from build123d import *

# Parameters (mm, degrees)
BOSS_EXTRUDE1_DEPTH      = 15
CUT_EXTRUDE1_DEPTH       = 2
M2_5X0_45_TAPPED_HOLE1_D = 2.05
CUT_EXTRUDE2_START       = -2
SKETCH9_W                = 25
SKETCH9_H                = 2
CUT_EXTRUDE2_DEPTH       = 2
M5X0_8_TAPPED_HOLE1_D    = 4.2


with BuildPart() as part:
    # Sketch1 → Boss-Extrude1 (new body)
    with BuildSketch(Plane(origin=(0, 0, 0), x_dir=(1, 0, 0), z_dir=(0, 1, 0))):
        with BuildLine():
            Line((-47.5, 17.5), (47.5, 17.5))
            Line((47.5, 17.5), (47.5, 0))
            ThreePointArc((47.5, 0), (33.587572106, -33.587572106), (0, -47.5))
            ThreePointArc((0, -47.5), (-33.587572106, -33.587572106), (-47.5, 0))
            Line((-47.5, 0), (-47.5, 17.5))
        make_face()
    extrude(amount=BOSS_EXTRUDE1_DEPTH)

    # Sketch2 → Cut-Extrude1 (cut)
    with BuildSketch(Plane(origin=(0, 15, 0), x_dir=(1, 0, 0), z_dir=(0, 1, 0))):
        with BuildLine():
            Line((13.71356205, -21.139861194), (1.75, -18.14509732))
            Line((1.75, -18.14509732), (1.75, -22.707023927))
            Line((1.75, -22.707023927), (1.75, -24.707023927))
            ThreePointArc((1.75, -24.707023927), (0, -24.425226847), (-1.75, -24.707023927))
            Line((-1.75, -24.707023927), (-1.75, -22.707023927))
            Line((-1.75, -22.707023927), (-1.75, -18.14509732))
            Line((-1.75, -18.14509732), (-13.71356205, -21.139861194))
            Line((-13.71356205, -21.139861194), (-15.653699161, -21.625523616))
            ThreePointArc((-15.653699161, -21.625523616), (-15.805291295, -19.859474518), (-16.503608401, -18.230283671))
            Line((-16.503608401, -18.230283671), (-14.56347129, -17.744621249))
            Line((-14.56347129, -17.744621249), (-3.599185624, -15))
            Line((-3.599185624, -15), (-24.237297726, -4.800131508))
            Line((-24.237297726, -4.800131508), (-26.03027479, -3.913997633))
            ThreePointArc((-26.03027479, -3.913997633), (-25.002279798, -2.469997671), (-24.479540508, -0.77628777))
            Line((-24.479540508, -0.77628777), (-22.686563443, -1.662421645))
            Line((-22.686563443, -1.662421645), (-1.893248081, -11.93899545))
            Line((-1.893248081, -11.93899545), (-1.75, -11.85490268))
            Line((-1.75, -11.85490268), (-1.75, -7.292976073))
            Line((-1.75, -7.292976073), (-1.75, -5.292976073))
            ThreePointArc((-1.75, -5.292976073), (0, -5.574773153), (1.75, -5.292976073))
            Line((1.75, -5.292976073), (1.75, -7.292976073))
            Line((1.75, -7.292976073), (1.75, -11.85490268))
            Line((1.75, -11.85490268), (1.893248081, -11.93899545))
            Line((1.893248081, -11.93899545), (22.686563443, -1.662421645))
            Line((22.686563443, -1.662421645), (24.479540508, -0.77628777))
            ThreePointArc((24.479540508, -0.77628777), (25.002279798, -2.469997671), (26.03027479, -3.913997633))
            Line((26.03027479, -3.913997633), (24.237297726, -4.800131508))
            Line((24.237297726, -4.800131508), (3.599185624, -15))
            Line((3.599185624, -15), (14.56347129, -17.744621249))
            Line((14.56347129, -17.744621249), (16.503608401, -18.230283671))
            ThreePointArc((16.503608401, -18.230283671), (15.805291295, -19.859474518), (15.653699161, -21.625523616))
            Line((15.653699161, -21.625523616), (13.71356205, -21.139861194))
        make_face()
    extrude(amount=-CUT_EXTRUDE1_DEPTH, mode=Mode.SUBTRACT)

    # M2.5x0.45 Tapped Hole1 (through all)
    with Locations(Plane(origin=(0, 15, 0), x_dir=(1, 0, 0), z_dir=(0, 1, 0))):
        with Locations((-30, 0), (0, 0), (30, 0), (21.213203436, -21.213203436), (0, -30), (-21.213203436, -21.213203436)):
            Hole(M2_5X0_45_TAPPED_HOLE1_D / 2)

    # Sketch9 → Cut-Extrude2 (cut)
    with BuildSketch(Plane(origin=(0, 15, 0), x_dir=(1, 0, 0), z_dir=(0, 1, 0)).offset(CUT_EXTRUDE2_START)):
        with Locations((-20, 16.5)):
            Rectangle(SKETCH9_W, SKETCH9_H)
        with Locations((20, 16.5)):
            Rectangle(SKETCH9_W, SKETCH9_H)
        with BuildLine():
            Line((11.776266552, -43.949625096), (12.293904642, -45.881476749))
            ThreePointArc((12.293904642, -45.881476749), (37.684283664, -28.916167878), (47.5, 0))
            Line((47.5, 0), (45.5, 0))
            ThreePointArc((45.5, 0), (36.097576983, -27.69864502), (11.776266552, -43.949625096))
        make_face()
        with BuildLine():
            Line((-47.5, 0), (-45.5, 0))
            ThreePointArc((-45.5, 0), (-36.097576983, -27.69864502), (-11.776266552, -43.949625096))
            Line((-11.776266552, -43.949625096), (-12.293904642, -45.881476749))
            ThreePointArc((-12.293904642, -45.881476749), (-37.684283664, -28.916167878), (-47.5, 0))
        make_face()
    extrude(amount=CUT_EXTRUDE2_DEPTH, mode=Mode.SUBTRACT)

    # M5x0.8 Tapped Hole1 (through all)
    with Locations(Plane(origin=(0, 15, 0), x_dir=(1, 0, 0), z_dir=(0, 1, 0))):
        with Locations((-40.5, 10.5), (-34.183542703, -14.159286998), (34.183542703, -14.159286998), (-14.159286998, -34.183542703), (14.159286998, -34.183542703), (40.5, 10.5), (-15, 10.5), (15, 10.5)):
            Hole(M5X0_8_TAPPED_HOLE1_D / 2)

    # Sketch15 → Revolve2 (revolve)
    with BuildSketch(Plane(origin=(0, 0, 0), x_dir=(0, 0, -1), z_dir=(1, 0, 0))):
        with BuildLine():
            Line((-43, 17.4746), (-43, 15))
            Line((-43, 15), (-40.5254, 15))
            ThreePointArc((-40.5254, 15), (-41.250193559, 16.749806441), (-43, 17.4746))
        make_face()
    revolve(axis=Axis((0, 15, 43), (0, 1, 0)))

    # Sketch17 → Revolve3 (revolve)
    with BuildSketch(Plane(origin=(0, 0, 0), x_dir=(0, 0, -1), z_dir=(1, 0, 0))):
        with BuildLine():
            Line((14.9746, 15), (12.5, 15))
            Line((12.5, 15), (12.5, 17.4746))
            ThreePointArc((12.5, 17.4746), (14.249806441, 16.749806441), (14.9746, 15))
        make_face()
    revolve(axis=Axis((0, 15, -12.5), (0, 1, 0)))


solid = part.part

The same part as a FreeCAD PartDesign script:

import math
import FreeCAD as App
import Part
import Sketcher

V = App.Vector
Q = App.Units.Quantity


def add_polygon(sketch, points):
    """Adds a closed chain of lines whose ends are joined by coincident constraints."""
    first, n = sketch.GeometryCount, len(points)
    for a, b in zip(points, points[1:] + points[:1]):
        sketch.addGeometry(Part.LineSegment(App.Vector(*a, 0), App.Vector(*b, 0)), False)
    for i in range(n):
        sketch.addConstraint(Sketcher.Constraint("Coincident", first + i, 2, first + (i + 1) % n, 1))

doc = App.newDocument("Part")
params = doc.addObject("Spreadsheet::Sheet", "Params")
for row, (alias, value) in enumerate([
    ("sketch1_radius", "47.5 mm"),
    ("sketch1_height", "17.5 mm"),
    ("pad1_length", "15 mm"),
    ("sketch2_length", "2 mm"),
    ("pocket1_length", "2 mm"),
    ("sketch3_diameter", "2.05 mm"),
    ("hole_diameter", "2.05 mm"),
    ("sketch4_radius", "47.5 mm"),
    ("sketch4_radius2", "45.5 mm"),
    ("sketch4_width", "25 mm"),
    ("pocket2_length", "2 mm"),
    ("sketch5_diameter", "4.2 mm"),
    ("hole2_diameter", "4.2 mm"),
    ("revolution_angle", "360 deg"),
    ("revolution2_angle", "360 deg"),
], start=1):
    params.set(f"A{row}", alias)
    params.set(f"B{row}", "=" + value)
    params.setAlias(f"B{row}", alias)

body = doc.addObject("PartDesign::Body", "Body")

# Sketch on XZ plane
sketch1 = doc.addObject("Sketcher::SketchObject", "Sketch")
body.addObject(sketch1)
sketch1.AttachmentSupport = (doc.XZ_Plane, [""])
sketch1.MapMode = "FlatFace"
sketch1.addGeometry([
    Part.LineSegment(V(48, -18, 0), V(-48, -18, 0)),  # 0
    Part.LineSegment(V(-48, -18, 0), V(-48, 0, 0)),  # 1
    Part.ArcOfCircle(Part.Circle(V(0, 0, 0), V(0, 0, 1), 48), math.radians(90), math.radians(180)),  # 2
    Part.ArcOfCircle(Part.Circle(V(0, 0, 0), V(0, 0, 1), 48), math.radians(0), math.radians(90)),  # 3
    Part.LineSegment(V(48, 0, 0), V(48, -18, 0)),  # 4
], False)
sketch1.addConstraint([
    Sketcher.Constraint("Coincident", 0, 2, 1, 1),
    Sketcher.Constraint("Tangent", 1, 2, 2, 2),
    Sketcher.Constraint("Tangent", 2, 1, 3, 2),
    Sketcher.Constraint("Tangent", 3, 1, 4, 1),
    Sketcher.Constraint("Coincident", 4, 2, 0, 1),
    Sketcher.Constraint("Horizontal", 0),
    Sketcher.Constraint("Vertical", 1),
    Sketcher.Constraint("Vertical", 4),
    Sketcher.Constraint("Coincident", 2, 3, -1, 1),
    Sketcher.Constraint("Equal", 2, 3),
    Sketcher.Constraint("PointOnObject", 2, 1, -2),
    Sketcher.Constraint("Radius", 2, 47.5),
    Sketcher.Constraint("DistanceY", 1, 1, 1, 2, 17.5),
])
sketch1.setExpression("Constraints[11]", "Params.sketch1_radius")
sketch1.setExpression("Constraints[12]", "Params.sketch1_height")
pad1 = doc.addObject("PartDesign::Pad", "Pad")
body.addObject(pad1)
pad1.Profile = sketch1
pad1.setExpression("Length", "Params.pad1_length")
pad1.Reversed = True

# Sketch on XZ plane
sketch2 = doc.addObject("Sketcher::SketchObject", "Sketch001")
body.addObject(sketch2)
sketch2.AttachmentSupport = (doc.XZ_Plane, [""])
sketch2.MapMode = "FlatFace"
sketch2.AttachmentOffset = App.Placement(V(0, 0, -15), App.Rotation())
sketch2.addGeometry([
    Part.LineSegment(V(1.75, 18.15, 0), V(13.71, 21.14, 0)),  # 0
    Part.LineSegment(V(13.71, 21.14, 0), V(15.65, 21.63, 0)),  # 1
    Part.ArcOfCircle(Part.Circle(V(21.21, 21.21, 0), V(0, 0, 1), 5.57), math.radians(176), math.radians(212)),  # 2
    Part.LineSegment(V(16.5, 18.23, 0), V(14.56, 17.74, 0)),  # 3
    Part.LineSegment(V(14.56, 17.74, 0), V(3.6, 15, 0)),  # 4
    Part.LineSegment(V(3.6, 15, 0), V(24.24, 4.8, 0)),  # 5
    Part.LineSegment(V(24.24, 4.8, 0), V(26.03, 3.91, 0)),  # 6
    Part.ArcOfCircle(Part.Circle(V(30, 0, 0), V(0, 0, 1), 5.57), math.radians(135), math.radians(172)),  # 7
    Part.LineSegment(V(24.48, 0.78, 0), V(22.69, 1.66, 0)),  # 8
    Part.LineSegment(V(22.69, 1.66, 0), V(1.89, 11.94, 0)),  # 9
    Part.LineSegment(V(1.89, 11.94, 0), V(1.75, 11.85, 0)),  # 10
    Part.LineSegment(V(1.75, 11.85, 0), V(1.75, 5.29, 0)),  # 11
    Part.ArcOfCircle(Part.Circle(V(0, 0, 0), V(0, 0, 1), 5.57), math.radians(72), math.radians(108)),  # 12
    Part.LineSegment(V(-1.75, 5.29, 0), V(-1.75, 11.85, 0)),  # 13
    Part.LineSegment(V(-1.75, 11.85, 0), V(-1.89, 11.94, 0)),  # 14
    Part.LineSegment(V(-1.89, 11.94, 0), V(-22.69, 1.66, 0)),  # 15
    Part.LineSegment(V(-22.69, 1.66, 0), V(-24.48, 0.78, 0)),  # 16
    Part.ArcOfCircle(Part.Circle(V(-30, 0, 0), V(0, 0, 1), 5.57), math.radians(8), math.radians(45)),  # 17
    Part.LineSegment(V(-26.03, 3.91, 0), V(-24.24, 4.8, 0)),  # 18
    Part.LineSegment(V(-24.24, 4.8, 0), V(-3.6, 15, 0)),  # 19
    Part.LineSegment(V(-3.6, 15, 0), V(-14.56, 17.74, 0)),  # 20
    Part.LineSegment(V(-14.56, 17.74, 0), V(-16.5, 18.23, 0)),  # 21
    Part.ArcOfCircle(Part.Circle(V(-21.21, 21.21, 0), V(0, 0, 1), 5.57), math.radians(-32), math.radians(4)),  # 22
    Part.LineSegment(V(-15.65, 21.63, 0), V(-13.71, 21.14, 0)),  # 23
    Part.LineSegment(V(-13.71, 21.14, 0), V(-1.75, 18.15, 0)),  # 24
    Part.LineSegment(V(-1.75, 18.15, 0), V(-1.75, 24.71, 0)),  # 25
    Part.ArcOfCircle(Part.Circle(V(0, 30, 0), V(0, 0, 1), 5.57), math.radians(-108), math.radians(-72)),  # 26
    Part.LineSegment(V(1.75, 24.71, 0), V(1.75, 18.15, 0)),  # 27
], False)
sketch2.addConstraint([
    Sketcher.Constraint("Coincident", 0, 2, 1, 1),
    Sketcher.Constraint("Coincident", 1, 2, 2, 1),
    Sketcher.Constraint("Coincident", 2, 2, 3, 1),
    Sketcher.Constraint("Coincident", 3, 2, 4, 1),
    Sketcher.Constraint("Coincident", 4, 2, 5, 1),
    Sketcher.Constraint("Coincident", 5, 2, 6, 1),
    Sketcher.Constraint("Coincident", 6, 2, 7, 1),
    Sketcher.Constraint("Coincident", 7, 2, 8, 1),
    Sketcher.Constraint("Coincident", 8, 2, 9, 1),
    Sketcher.Constraint("Coincident", 9, 2, 10, 1),
    Sketcher.Constraint("Coincident", 10, 2, 11, 1),
    Sketcher.Constraint("Coincident", 11, 2, 12, 1),
    Sketcher.Constraint("Coincident", 12, 2, 13, 1),
    Sketcher.Constraint("Coincident", 13, 2, 14, 1),
    Sketcher.Constraint("Coincident", 14, 2, 15, 1),
    Sketcher.Constraint("Coincident", 15, 2, 16, 1),
    Sketcher.Constraint("Coincident", 16, 2, 17, 1),
    Sketcher.Constraint("Coincident", 17, 2, 18, 1),
    Sketcher.Constraint("Coincident", 18, 2, 19, 1),
    Sketcher.Constraint("Coincident", 19, 2, 20, 1),
    Sketcher.Constraint("Coincident", 20, 2, 21, 1),
    Sketcher.Constraint("Coincident", 21, 2, 22, 1),
    Sketcher.Constraint("Coincident", 22, 2, 23, 1),
    Sketcher.Constraint("Coincident", 23, 2, 24, 1),
    Sketcher.Constraint("Coincident", 24, 2, 25, 1),
    Sketcher.Constraint("Coincident", 25, 2, 26, 1),
    Sketcher.Constraint("Coincident", 26, 2, 27, 1),
    Sketcher.Constraint("Coincident", 27, 2, 0, 1),
    Sketcher.Constraint("Vertical", 11),
    Sketcher.Constraint("Vertical", 13),
    Sketcher.Constraint("Vertical", 25),
    Sketcher.Constraint("Vertical", 27),
    Sketcher.Constraint("Coincident", 12, 3, -1, 1),
    Sketcher.Constraint("Equal", 2, 7),
    Sketcher.Constraint("Equal", 7, 12),
    Sketcher.Constraint("Equal", 12, 17),
    Sketcher.Constraint("Equal", 17, 22),
    Sketcher.Constraint("Equal", 22, 26),
    Sketcher.Constraint("Symmetric", 7, 3, 17, 3, -1, 1),
    Sketcher.Constraint("Symmetric", 2, 3, 22, 3, -2),
    Sketcher.Constraint("Symmetric", 10, 2, 13, 2, -2),
    Sketcher.Constraint("Symmetric", 9, 2, 14, 2, -2),
    Sketcher.Constraint("Symmetric", 8, 2, 15, 2, -2),
    Sketcher.Constraint("Symmetric", 7, 2, 16, 2, -2),
    Sketcher.Constraint("Symmetric", 5, 2, 18, 2, -2),
    Sketcher.Constraint("Symmetric", 4, 2, 19, 2, -2),
    Sketcher.Constraint("Symmetric", 3, 2, 20, 2, -2),
    Sketcher.Constraint("Symmetric", 0, 2, 23, 2, -2),
    Sketcher.Constraint("Symmetric", 25, 2, 26, 2, -2),
    Sketcher.Constraint("Parallel", 0, 1),
    Sketcher.Constraint("Parallel", 1, 3),
    Sketcher.Constraint("Parallel", 3, 4),
    Sketcher.Constraint("Parallel", 5, 6),
    Sketcher.Constraint("Parallel", 6, 8),
    Sketcher.Constraint("Parallel", 8, 9),
    Sketcher.Constraint("Parallel", 16, 18),
    Sketcher.Constraint("Parallel", 20, 21),
    Sketcher.Constraint("Parallel", 21, 23),
    Sketcher.Constraint("Parallel", 23, 24),
    Sketcher.Constraint("Vertical", 13, 2, 24, 2),
    Sketcher.Constraint("Equal", 13, 25),
    Sketcher.Constraint("Equal", 1, 3),
    Sketcher.Constraint("Equal", 3, 6),
    Sketcher.Constraint("Equal", 6, 8),
    Sketcher.Constraint("Distance", 1, 2.0),
    Sketcher.Constraint("DistanceX", -1, 1, 7, 3, 30.0),
    Sketcher.Constraint("DistanceY", -1, 1, 26, 3, 30.0),
    Sketcher.Constraint("DistanceY", -1, 1, 4, 2, 15.0),
    Sketcher.Constraint("DistanceX", 12, 2, 11, 2, 3.5),
    Sketcher.Constraint("Radius", 2, 5.574773),
    Sketcher.Constraint("DistanceX", -1, 1, 1, 2, 15.653699),
    Sketcher.Constraint("DistanceX", 1, 2, 5, 2, 8.583599),
    Sketcher.Constraint("DistanceY", 14, 2, 24, 2, 6.206102),
    Sketcher.Constraint("Distance", 4, 11.302588),
    Sketcher.Constraint("Distance", 9, 23.194179),
    Sketcher.Constraint("DistanceY", 11, 2, 11, 1, 6.561927),
    Sketcher.Constraint("DistanceY", -1, 1, 0, 2, 21.139861),
    Sketcher.Constraint("DistanceX", -1, 1, 2, 2, 16.503608),
])
sketch2.setExpression("Constraints[64]", "Params.sketch2_length")
pocket1 = doc.addObject("PartDesign::Pocket", "Pocket")
body.addObject(pocket1)
pocket1.Profile = sketch2
pocket1.setExpression("Length", "Params.pocket1_length")
pocket1.Reversed = True

# Sketch on XZ plane
sketch3 = doc.addObject("Sketcher::SketchObject", "Sketch002")
body.addObject(sketch3)
sketch3.AttachmentSupport = (doc.XZ_Plane, [""])
sketch3.MapMode = "FlatFace"
sketch3.AttachmentOffset = App.Placement(V(0, 0, -15), App.Rotation())
sketch3.addGeometry([
    Part.Circle(V(-30, 0, 0), V(0, 0, 1), 1),  # 0
    Part.Circle(V(0, 0, 0), V(0, 0, 1), 1),  # 1
    Part.Circle(V(30, 0, 0), V(0, 0, 1), 1),  # 2
    Part.Circle(V(21.2, 21.2, 0), V(0, 0, 1), 1),  # 3
    Part.Circle(V(0, 30, 0), V(0, 0, 1), 1),  # 4
    Part.Circle(V(-21.2, 21.2, 0), V(0, 0, 1), 1),  # 5
], False)
sketch3.addConstraint([
    Sketcher.Constraint("Coincident", 1, 3, -1, 1),
    Sketcher.Constraint("Equal", 0, 1),
    Sketcher.Constraint("Equal", 1, 2),
    Sketcher.Constraint("Equal", 2, 3),
    Sketcher.Constraint("Equal", 3, 4),
    Sketcher.Constraint("Equal", 4, 5),
    Sketcher.Constraint("Symmetric", 0, 3, 2, 3, -1, 1),
    Sketcher.Constraint("Symmetric", 3, 3, 5, 3, -2),
    Sketcher.Constraint("PointOnObject", 0, 3, -1),
    Sketcher.Constraint("PointOnObject", 4, 3, -2),
    Sketcher.Constraint("Diameter", 0, 2.05),
    Sketcher.Constraint("DistanceX", 0, 3, -1, 1, 30.0),
    Sketcher.Constraint("DistanceY", -1, 1, 4, 3, 30.0),
    Sketcher.Constraint("DistanceX", -1, 1, 3, 3, 21.213203),
    Sketcher.Constraint("DistanceY", -1, 1, 3, 3, 21.213203),
])
sketch3.setExpression("Constraints[10]", "Params.sketch3_diameter")
doc.recompute()
hole = doc.addObject("PartDesign::Hole", "Hole")
body.addObject(hole)
hole.Profile = sketch3
hole.ThreadType = "None"
hole.setExpression("Diameter", "Params.hole_diameter")
hole.DepthType = "ThroughAll"
hole.Reversed = True

# Sketch on XZ plane
sketch4 = doc.addObject("Sketcher::SketchObject", "Sketch003")
body.addObject(sketch4)
sketch4.AttachmentSupport = (doc.XZ_Plane, [""])
sketch4.MapMode = "FlatFace"
sketch4.AttachmentOffset = App.Placement(V(0, 0, -13), App.Rotation())
add_polygon(sketch4, [(-32.5, -17.5), (-32.5, -15.5), (-7.5, -15.5), (-7.5, -17.5)])  # lines 0-3
add_polygon(sketch4, [(7.5, -17.5), (7.5, -15.5), (32.5, -15.5), (32.5, -17.5)])  # lines 4-7
sketch4.addGeometry(Part.LineSegment(V(11.8, 43.9, 0), V(12.3, 45.9, 0)), False)  # 8
sketch4.addGeometry(Part.ArcOfCircle(Part.Circle(V(0, 0, 0), V(0, 0, 1), 47.5), math.radians(0), math.radians(75)), False)  # 9
sketch4.addGeometry(Part.LineSegment(V(47.5, 0, 0), V(45.5, 0, 0)), False)  # 10
sketch4.addGeometry(Part.ArcOfCircle(Part.Circle(V(0, 0, 0), V(0, 0, 1), 45.5), math.radians(0), math.radians(75)), False)  # 11
sketch4.addGeometry(Part.LineSegment(V(-45.5, 0, 0), V(-47.5, 0, 0)), False)  # 12
sketch4.addGeometry(Part.ArcOfCircle(Part.Circle(V(0, 0, 0), V(0, 0, 1), 47.5), math.radians(105), math.radians(180)), False)  # 13
sketch4.addGeometry(Part.LineSegment(V(-12.3, 45.9, 0), V(-11.8, 43.9, 0)), False)  # 14
sketch4.addGeometry(Part.ArcOfCircle(Part.Circle(V(0, 0, 0), V(0, 0, 1), 45.5), math.radians(105), math.radians(180)), False)  # 15
sketch4.addConstraint([
    Sketcher.Constraint("Coincident", 8, 2, 9, 2),
    Sketcher.Constraint("Coincident", 9, 1, 10, 1),
    Sketcher.Constraint("Coincident", 10, 2, 11, 1),
    Sketcher.Constraint("Coincident", 11, 2, 8, 1),
    Sketcher.Constraint("Coincident", 12, 2, 13, 2),
    Sketcher.Constraint("Coincident", 13, 1, 14, 1),
    Sketcher.Constraint("Coincident", 14, 2, 15, 1),
    Sketcher.Constraint("Coincident", 15, 2, 12, 1),
    Sketcher.Constraint("Vertical", 0),
    Sketcher.Constraint("Horizontal", 1),
    Sketcher.Constraint("Vertical", 2),
    Sketcher.Constraint("Horizontal", 3),
    Sketcher.Constraint("Vertical", 4),
    Sketcher.Constraint("Horizontal", 5),
    Sketcher.Constraint("Vertical", 6),
    Sketcher.Constraint("Horizontal", 7),
    Sketcher.Constraint("Horizontal", 10),
    Sketcher.Constraint("Horizontal", 12),
    Sketcher.Constraint("Coincident", 9, 3, -1, 1),
    Sketcher.Constraint("Coincident", 11, 3, -1, 1),
    Sketcher.Constraint("Coincident", 13, 3, -1, 1),
    Sketcher.Constraint("Coincident", 15, 3, -1, 1),
    Sketcher.Constraint("Equal", 9, 13),
    Sketcher.Constraint("Equal", 11, 15),
    Sketcher.Constraint("Symmetric", 1, 2, 4, 2, -2),
    Sketcher.Constraint("Symmetric", 3, 2, 6, 2, -2),
    Sketcher.Constraint("PointOnObject", 9, 1, -1),
    Sketcher.Constraint("PointOnObject", 12, 2, -1),
    Sketcher.Constraint("Horizontal", 8, 2, 13, 1),
    Sketcher.Constraint("Horizontal", 11, 2, 14, 2),
    Sketcher.Constraint("Equal", 12, 0),
    Sketcher.Constraint("Radius", 9, 47.5),
    Sketcher.Constraint("Radius", 11, 45.5),
    Sketcher.Constraint("DistanceX", 1, 1, 1, 2, 25.0),
    Sketcher.Constraint("Angle", 8, Q("75 deg")),
    Sketcher.Constraint("DistanceX", 1, 2, 4, 2, 15.0),
    Sketcher.Constraint("DistanceY", 0, 2, -1, 1, 15.5),
    Sketcher.Constraint("DistanceX", 13, 1, 11, 2, 24.070171),
])
sketch4.setExpression("Constraints[39]", "Params.sketch4_radius")
sketch4.setExpression("Constraints[40]", "Params.sketch4_radius2")
sketch4.setExpression("Constraints[41]", "Params.sketch4_width")
pocket2 = doc.addObject("PartDesign::Pocket", "Pocket001")
body.addObject(pocket2)
pocket2.Profile = sketch4
pocket2.setExpression("Length", "Params.pocket2_length")

# Sketch on XZ plane
sketch5 = doc.addObject("Sketcher::SketchObject", "Sketch004")
body.addObject(sketch5)
sketch5.AttachmentSupport = (doc.XZ_Plane, [""])
sketch5.MapMode = "FlatFace"
sketch5.AttachmentOffset = App.Placement(V(0, 0, -15), App.Rotation())
sketch5.addGeometry([
    Part.Circle(V(-40.5, -10.5, 0), V(0, 0, 1), 2.1),  # 0
    Part.Circle(V(-34.2, 14.2, 0), V(0, 0, 1), 2.1),  # 1
    Part.Circle(V(34.2, 14.2, 0), V(0, 0, 1), 2.1),  # 2
    Part.Circle(V(-14.2, 34.2, 0), V(0, 0, 1), 2.1),  # 3
    Part.Circle(V(14.2, 34.2, 0), V(0, 0, 1), 2.1),  # 4
    Part.Circle(V(40.5, -10.5, 0), V(0, 0, 1), 2.1),  # 5
    Part.Circle(V(-15, -10.5, 0), V(0, 0, 1), 2.1),  # 6
    Part.Circle(V(15, -10.5, 0), V(0, 0, 1), 2.1),  # 7
], False)
sketch5.addConstraint([
    Sketcher.Constraint("Equal", 0, 1),
    Sketcher.Constraint("Equal", 1, 2),
    Sketcher.Constraint("Equal", 2, 3),
    Sketcher.Constraint("Equal", 3, 4),
    Sketcher.Constraint("Equal", 4, 5),
    Sketcher.Constraint("Equal", 5, 6),
    Sketcher.Constraint("Equal", 6, 7),
    Sketcher.Constraint("Symmetric", 1, 3, 2, 3, -2),
    Sketcher.Constraint("Symmetric", 3, 3, 4, 3, -2),
    Sketcher.Constraint("Symmetric", 0, 3, 5, 3, -2),
    Sketcher.Constraint("Symmetric", 6, 3, 7, 3, -2),
    Sketcher.Constraint("Horizontal", 5, 3, 6, 3),
    Sketcher.Constraint("Diameter", 0, 4.2),
    Sketcher.Constraint("DistanceX", 6, 3, -1, 1, 15.0),
    Sketcher.Constraint("DistanceX", 0, 3, 5, 3, 81.0),
    Sketcher.Constraint("DistanceY", 0, 3, -1, 1, 10.5),
    Sketcher.Constraint("DistanceX", 3, 3, 2, 3, 48.34283),
    Sketcher.Constraint("DistanceX", 1, 3, -1, 1, 34.183543),
    Sketcher.Constraint("DistanceY", -1, 1, 1, 3, 14.159287),
    Sketcher.Constraint("DistanceY", -1, 1, 3, 3, 34.183543),
])
sketch5.setExpression("Constraints[12]", "Params.sketch5_diameter")
doc.recompute()
hole2 = doc.addObject("PartDesign::Hole", "Hole001")
body.addObject(hole2)
hole2.Profile = sketch5
hole2.ThreadType = "None"
hole2.setExpression("Diameter", "Params.hole2_diameter")
hole2.DepthType = "ThroughAll"
hole2.Reversed = True

# Sketch on YZ plane
sketch6 = doc.addObject("Sketcher::SketchObject", "Sketch005")
body.addObject(sketch6)
sketch6.AttachmentSupport = (doc.YZ_Plane, [""])
sketch6.MapMode = "FlatFace"
sketch6.addGeometry([
    Part.LineSegment(V(17.5, 43, 0), V(15, 43, 0)),
    Part.LineSegment(V(15, 43, 0), V(15, 40.5, 0)),
    Part.ArcOfCircle(Part.Circle(V(15, 43, 0), V(0, 0, 1), 2.5), math.radians(-90), math.radians(0)),
], False)
sketch6.addGeometry(Part.LineSegment(V(15, 43, 0), V(17.5, 43, 0)), True)  # axis
sketch6.addConstraint([
    Sketcher.Constraint("Coincident", 0, 2, 1, 1),
    Sketcher.Constraint("Coincident", 1, 2, 2, 1),
    Sketcher.Constraint("Coincident", 2, 2, 0, 1),
    Sketcher.Constraint("Horizontal", 0),
    Sketcher.Constraint("Vertical", 1),
    Sketcher.Constraint("Horizontal", 3),
    Sketcher.Constraint("Coincident", 0, 2, 2, 3),
    Sketcher.Constraint("Coincident", 3, 1, 2, 3),
    Sketcher.Constraint("Equal", 0, 3),
    Sketcher.Constraint("DistanceX", -1, 1, 2, 3, 15.0),
    Sketcher.Constraint("DistanceY", -1, 1, 2, 3, 43.0),
    Sketcher.Constraint("Radius", 2, 2.4746),
])
revolution = doc.addObject("PartDesign::Revolution", "Revolution")
body.addObject(revolution)
revolution.Profile = sketch6
revolution.ReferenceAxis = (sketch6, ["Axis0"])
revolution.setExpression("Angle", "Params.revolution_angle")

# Sketch on YZ plane
sketch7 = doc.addObject("Sketcher::SketchObject", "Sketch006")
body.addObject(sketch7)
sketch7.AttachmentSupport = (doc.YZ_Plane, [""])
sketch7.MapMode = "FlatFace"
sketch7.addGeometry([
    Part.LineSegment(V(15, -12.5, 0), V(15, -15, 0)),
    Part.ArcOfCircle(Part.Circle(V(15, -12.5, 0), V(0, 0, 1), 2.5), math.radians(-90), math.radians(0)),
    Part.LineSegment(V(17.5, -12.5, 0), V(15, -12.5, 0)),
], False)
sketch7.addGeometry(Part.LineSegment(V(15, -12.5, 0), V(17.5, -12.5, 0)), True)  # axis
sketch7.addConstraint([
    Sketcher.Constraint("Coincident", 0, 2, 1, 1),
    Sketcher.Constraint("Coincident", 1, 2, 2, 1),
    Sketcher.Constraint("Coincident", 2, 2, 0, 1),
    Sketcher.Constraint("Vertical", 0),
    Sketcher.Constraint("Horizontal", 2),
    Sketcher.Constraint("Horizontal", 3),
    Sketcher.Constraint("Coincident", 2, 2, 1, 3),
    Sketcher.Constraint("Coincident", 3, 1, 1, 3),
    Sketcher.Constraint("Equal", 2, 3),
    Sketcher.Constraint("DistanceX", -1, 1, 1, 3, 15.0),
    Sketcher.Constraint("DistanceY", 1, 3, -1, 1, 12.5),
    Sketcher.Constraint("Radius", 1, 2.4746),
])
revolution2 = doc.addObject("PartDesign::Revolution", "Revolution001")
body.addObject(revolution2)
revolution2.Profile = sketch7
revolution2.ReferenceAxis = (sketch7, ["Axis0"])
revolution2.setExpression("Angle", "Params.revolution2_angle")

doc.recompute()
